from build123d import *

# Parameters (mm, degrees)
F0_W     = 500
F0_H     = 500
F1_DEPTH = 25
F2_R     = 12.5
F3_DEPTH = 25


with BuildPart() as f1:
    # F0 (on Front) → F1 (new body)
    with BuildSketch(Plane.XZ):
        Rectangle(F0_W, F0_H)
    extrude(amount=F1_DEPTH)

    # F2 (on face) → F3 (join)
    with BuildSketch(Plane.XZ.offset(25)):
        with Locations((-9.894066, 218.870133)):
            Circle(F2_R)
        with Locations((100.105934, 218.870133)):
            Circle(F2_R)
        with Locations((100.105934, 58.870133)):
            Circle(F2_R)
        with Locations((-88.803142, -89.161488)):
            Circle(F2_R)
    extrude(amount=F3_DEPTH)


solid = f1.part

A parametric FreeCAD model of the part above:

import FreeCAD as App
import Part
import Sketcher

V = App.Vector
Q = App.Units.Quantity


def add_polygon(sketch, points):
    """Adds a closed chain of lines whose ends are joined by coincident constraints."""
    first, n = sketch.GeometryCount, len(points)
    for a, b in zip(points, points[1:] + points[:1]):
        sketch.addGeometry(Part.LineSegment(App.Vector(*a, 0), App.Vector(*b, 0)), False)
    for i in range(n):
        sketch.addConstraint(Sketcher.Constraint("Coincident", first + i, 2, first + (i + 1) % n, 1))

doc = App.newDocument("Part")
body = doc.addObject("PartDesign::Body", "Body")

# Sketch on XZ plane
sketch1 = body.newObject("Sketcher::SketchObject", "Sketch")
sketch1.AttachmentSupport = (doc.getObject("XZ_Plane"), [""])
sketch1.MapMode = "FlatFace"
add_polygon(sketch1, [(-250, 250), (-250, -250), (250, -250), (250, 250)])  # lines 0-3
sketch1.addConstraint(Sketcher.Constraint("Vertical", 0))
sketch1.addConstraint(Sketcher.Constraint("Horizontal", 1))
sketch1.addConstraint(Sketcher.Constraint("Vertical", 2))
sketch1.addConstraint(Sketcher.Constraint("Horizontal", 3))
sketch1.addConstraint(Sketcher.Constraint("Symmetric", 0, 2, 2, 2, -1, 1))
sketch1.addConstraint(Sketcher.Constraint("Equal", 3, 0))
sketch1.addConstraint(Sketcher.Constraint("DistanceX", 1, 1, 1, 2, Q("500 mm")))
pad1 = body.newObject("PartDesign::Pad", "Pad")
pad1.Profile = sketch1
pad1.Length = 25

# Sketch on XZ plane
sketch2 = body.newObject("Sketcher::SketchObject", "Sketch001")
sketch2.AttachmentSupport = (doc.getObject("XZ_Plane"), [""])
sketch2.MapMode = "FlatFace"
sketch2.AttachmentOffset = App.Placement(V(0, 0, 25), App.Rotation())
sketch2.addGeometry(Part.Circle(V(-10, 219, 0), V(0, 0, 1), 12), False)
sketch2.addGeometry(Part.Circle(V(100, 219, 0), V(0, 0, 1), 12), False)
sketch2.addGeometry(Part.Circle(V(100, 59, 0), V(0, 0, 1), 12), False)
sketch2.addGeometry(Part.Circle(V(-89, -89, 0), V(0, 0, 1), 12), False)
sketch2.addConstraint(Sketcher.Constraint("Equal", 0, 1))
sketch2.addConstraint(Sketcher.Constraint("Equal", 1, 2))
sketch2.addConstraint(Sketcher.Constraint("Equal", 2, 3))
sketch2.addConstraint(Sketcher.Constraint("Horizontal", 0, 3, 1, 3))
sketch2.addConstraint(Sketcher.Constraint("Vertical", 1, 3, 2, 3))
sketch2.addConstraint(Sketcher.Constraint("Diameter", 0, Q("25 mm")))
sketch2.addConstraint(Sketcher.Constraint("DistanceX", 0, 3, 1, 3, Q("110 mm")))
sketch2.addConstraint(Sketcher.Constraint("DistanceY", 2, 3, 1, 3, Q("160 mm")))
sketch2.addConstraint(Sketcher.Constraint("DistanceX", 3, 3, -1, 1, Q("88.803142 mm")))
sketch2.addConstraint(Sketcher.Constraint("DistanceY", 3, 3, -1, 1, Q("89.161488 mm")))
sketch2.addConstraint(Sketcher.Constraint("DistanceY", 3, 3, 2, 3, Q("148.031621 mm")))
sketch2.addConstraint(Sketcher.Constraint("DistanceX", 0, 3, -1, 1, Q("9.894066 mm")))
pad2 = body.newObject("PartDesign::Pad", "Pad001")
pad2.Profile = sketch2
pad2.Length = 25

doc.recompute()
